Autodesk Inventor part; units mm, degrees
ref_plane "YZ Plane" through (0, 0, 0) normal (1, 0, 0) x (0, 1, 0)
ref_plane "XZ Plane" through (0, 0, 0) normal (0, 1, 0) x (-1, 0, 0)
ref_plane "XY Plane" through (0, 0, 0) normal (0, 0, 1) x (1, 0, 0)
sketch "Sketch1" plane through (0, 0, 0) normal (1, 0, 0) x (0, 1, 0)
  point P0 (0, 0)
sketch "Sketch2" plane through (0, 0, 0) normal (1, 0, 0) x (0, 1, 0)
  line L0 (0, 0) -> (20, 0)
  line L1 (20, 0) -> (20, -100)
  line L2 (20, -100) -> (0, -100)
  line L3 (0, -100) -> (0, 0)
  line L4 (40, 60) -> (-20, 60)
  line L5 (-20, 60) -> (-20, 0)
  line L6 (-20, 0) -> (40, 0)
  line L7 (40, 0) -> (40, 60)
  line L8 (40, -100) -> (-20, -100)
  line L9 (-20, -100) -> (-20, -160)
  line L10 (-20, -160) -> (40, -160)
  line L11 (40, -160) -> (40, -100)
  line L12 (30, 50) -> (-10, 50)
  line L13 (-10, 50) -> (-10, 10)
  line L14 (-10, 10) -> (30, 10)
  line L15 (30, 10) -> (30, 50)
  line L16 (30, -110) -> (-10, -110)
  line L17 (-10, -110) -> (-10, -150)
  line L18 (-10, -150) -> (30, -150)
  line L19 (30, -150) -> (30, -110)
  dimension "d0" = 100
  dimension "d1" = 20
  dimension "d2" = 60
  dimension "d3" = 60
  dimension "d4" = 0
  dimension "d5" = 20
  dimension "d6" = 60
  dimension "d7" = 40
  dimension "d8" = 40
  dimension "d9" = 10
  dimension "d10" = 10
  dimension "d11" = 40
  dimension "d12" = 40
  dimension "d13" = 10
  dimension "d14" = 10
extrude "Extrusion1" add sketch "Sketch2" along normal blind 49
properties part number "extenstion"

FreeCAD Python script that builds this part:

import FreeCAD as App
import Part
import Sketcher
Q = App.Units.Quantity


def add_polygon(sketch, points):
    """Adds a closed chain of lines whose ends are joined by coincident constraints."""
    first, n = sketch.GeometryCount, len(points)
    for a, b in zip(points, points[1:] + points[:1]):
        sketch.addGeometry(Part.LineSegment(App.Vector(*a, 0), App.Vector(*b, 0)), False)
    for i in range(n):
        sketch.addConstraint(Sketcher.Constraint("Coincident", first + i, 2, first + (i + 1) % n, 1))

doc = App.newDocument("Part")
body = doc.addObject("PartDesign::Body", "Body")

# Sketch on YZ plane
sketch1 = body.newObject("Sketcher::SketchObject", "Sketch")
sketch1.AttachmentSupport = (doc.getObject("YZ_Plane"), [""])
sketch1.MapMode = "FlatFace"
add_polygon(sketch1, [(-20, 0), (0, 0), (0, -100), (-20, -100), (-20, -160), (40, -160), (40, -100), (20, -100), (20, 0), (40, 0), (40, 60), (-20, 60)])  # lines 0-11
add_polygon(sketch1, [(-10, 50), (30, 50), (30, 10), (-10, 10)])  # lines 12-15
add_polygon(sketch1, [(30, -110), (30, -150), (-10, -150), (-10, -110)])  # lines 16-19
sketch1.addConstraint(Sketcher.Constraint("Horizontal", 0))
sketch1.addConstraint(Sketcher.Constraint("Vertical", 1))
sketch1.addConstraint(Sketcher.Constraint("Horizontal", 2))
sketch1.addConstraint(Sketcher.Constraint("Vertical", 3))
sketch1.addConstraint(Sketcher.Constraint("Horizontal", 4))
sketch1.addConstraint(Sketcher.Constraint("Vertical", 5))
sketch1.addConstraint(Sketcher.Constraint("Horizontal", 6))
sketch1.addConstraint(Sketcher.Constraint("Vertical", 7))
sketch1.addConstraint(Sketcher.Constraint("Horizontal", 8))
sketch1.addConstraint(Sketcher.Constraint("Vertical", 9))
sketch1.addConstraint(Sketcher.Constraint("Horizontal", 10))
sketch1.addConstraint(Sketcher.Constraint("Vertical", 11))
sketch1.addConstraint(Sketcher.Constraint("Horizontal", 12))
sketch1.addConstraint(Sketcher.Constraint("Vertical", 13))
sketch1.addConstraint(Sketcher.Constraint("Horizontal", 14))
sketch1.addConstraint(Sketcher.Constraint("Vertical", 15))
sketch1.addConstraint(Sketcher.Constraint("Vertical", 16))
sketch1.addConstraint(Sketcher.Constraint("Horizontal", 17))
sketch1.addConstraint(Sketcher.Constraint("Vertical", 18))
sketch1.addConstraint(Sketcher.Constraint("Horizontal", 19))
sketch1.addConstraint(Sketcher.Constraint("Coincident", 0, 2, -1, 1))
sketch1.addConstraint(Sketcher.Constraint("Symmetric", 7, 2, 11, 2, -1, 1))
sketch1.addConstraint(Sketcher.Constraint("Symmetric", 2, 2, 6, 2, -2))
sketch1.addConstraint(Sketcher.Constraint("Vertical", 5, 2, 8, 2))
sketch1.addConstraint(Sketcher.Constraint("Vertical", 13, 2, 16, 2))
sketch1.addConstraint(Sketcher.Constraint("Vertical", 15, 2, 17, 2))
sketch1.addConstraint(Sketcher.Constraint("Equal", 2, 6))
sketch1.addConstraint(Sketcher.Constraint("Equal", 10, 3))
sketch1.addConstraint(Sketcher.Constraint("Equal", 5, 9))
sketch1.addConstraint(Sketcher.Constraint("Equal", 19, 13))
sketch1.addConstraint(Sketcher.Constraint("Equal", 15, 16))
sketch1.addConstraint(Sketcher.Constraint("DistanceX", 0, 1, 0, 2, Q("20 mm")))
sketch1.addConstraint(Sketcher.Constraint("DistanceX", 12, 1, 12, 2, Q("40 mm")))
sketch1.addConstraint(Sketcher.Constraint("DistanceY", 1, 2, 1, 1, Q("100 mm")))
sketch1.addConstraint(Sketcher.Constraint("DistanceY", -1, 1, 13, 2, Q("10 mm")))
sketch1.addConstraint(Sketcher.Constraint("DistanceX", 14, 2, -1, 1, Q("10 mm")))
sketch1.addConstraint(Sketcher.Constraint("DistanceY", 4, 2, 16, 2, Q("10 mm")))
pad1 = body.newObject("PartDesign::Pad", "Pad")
pad1.Profile = sketch1
pad1.Length = 49

doc.recompute()
